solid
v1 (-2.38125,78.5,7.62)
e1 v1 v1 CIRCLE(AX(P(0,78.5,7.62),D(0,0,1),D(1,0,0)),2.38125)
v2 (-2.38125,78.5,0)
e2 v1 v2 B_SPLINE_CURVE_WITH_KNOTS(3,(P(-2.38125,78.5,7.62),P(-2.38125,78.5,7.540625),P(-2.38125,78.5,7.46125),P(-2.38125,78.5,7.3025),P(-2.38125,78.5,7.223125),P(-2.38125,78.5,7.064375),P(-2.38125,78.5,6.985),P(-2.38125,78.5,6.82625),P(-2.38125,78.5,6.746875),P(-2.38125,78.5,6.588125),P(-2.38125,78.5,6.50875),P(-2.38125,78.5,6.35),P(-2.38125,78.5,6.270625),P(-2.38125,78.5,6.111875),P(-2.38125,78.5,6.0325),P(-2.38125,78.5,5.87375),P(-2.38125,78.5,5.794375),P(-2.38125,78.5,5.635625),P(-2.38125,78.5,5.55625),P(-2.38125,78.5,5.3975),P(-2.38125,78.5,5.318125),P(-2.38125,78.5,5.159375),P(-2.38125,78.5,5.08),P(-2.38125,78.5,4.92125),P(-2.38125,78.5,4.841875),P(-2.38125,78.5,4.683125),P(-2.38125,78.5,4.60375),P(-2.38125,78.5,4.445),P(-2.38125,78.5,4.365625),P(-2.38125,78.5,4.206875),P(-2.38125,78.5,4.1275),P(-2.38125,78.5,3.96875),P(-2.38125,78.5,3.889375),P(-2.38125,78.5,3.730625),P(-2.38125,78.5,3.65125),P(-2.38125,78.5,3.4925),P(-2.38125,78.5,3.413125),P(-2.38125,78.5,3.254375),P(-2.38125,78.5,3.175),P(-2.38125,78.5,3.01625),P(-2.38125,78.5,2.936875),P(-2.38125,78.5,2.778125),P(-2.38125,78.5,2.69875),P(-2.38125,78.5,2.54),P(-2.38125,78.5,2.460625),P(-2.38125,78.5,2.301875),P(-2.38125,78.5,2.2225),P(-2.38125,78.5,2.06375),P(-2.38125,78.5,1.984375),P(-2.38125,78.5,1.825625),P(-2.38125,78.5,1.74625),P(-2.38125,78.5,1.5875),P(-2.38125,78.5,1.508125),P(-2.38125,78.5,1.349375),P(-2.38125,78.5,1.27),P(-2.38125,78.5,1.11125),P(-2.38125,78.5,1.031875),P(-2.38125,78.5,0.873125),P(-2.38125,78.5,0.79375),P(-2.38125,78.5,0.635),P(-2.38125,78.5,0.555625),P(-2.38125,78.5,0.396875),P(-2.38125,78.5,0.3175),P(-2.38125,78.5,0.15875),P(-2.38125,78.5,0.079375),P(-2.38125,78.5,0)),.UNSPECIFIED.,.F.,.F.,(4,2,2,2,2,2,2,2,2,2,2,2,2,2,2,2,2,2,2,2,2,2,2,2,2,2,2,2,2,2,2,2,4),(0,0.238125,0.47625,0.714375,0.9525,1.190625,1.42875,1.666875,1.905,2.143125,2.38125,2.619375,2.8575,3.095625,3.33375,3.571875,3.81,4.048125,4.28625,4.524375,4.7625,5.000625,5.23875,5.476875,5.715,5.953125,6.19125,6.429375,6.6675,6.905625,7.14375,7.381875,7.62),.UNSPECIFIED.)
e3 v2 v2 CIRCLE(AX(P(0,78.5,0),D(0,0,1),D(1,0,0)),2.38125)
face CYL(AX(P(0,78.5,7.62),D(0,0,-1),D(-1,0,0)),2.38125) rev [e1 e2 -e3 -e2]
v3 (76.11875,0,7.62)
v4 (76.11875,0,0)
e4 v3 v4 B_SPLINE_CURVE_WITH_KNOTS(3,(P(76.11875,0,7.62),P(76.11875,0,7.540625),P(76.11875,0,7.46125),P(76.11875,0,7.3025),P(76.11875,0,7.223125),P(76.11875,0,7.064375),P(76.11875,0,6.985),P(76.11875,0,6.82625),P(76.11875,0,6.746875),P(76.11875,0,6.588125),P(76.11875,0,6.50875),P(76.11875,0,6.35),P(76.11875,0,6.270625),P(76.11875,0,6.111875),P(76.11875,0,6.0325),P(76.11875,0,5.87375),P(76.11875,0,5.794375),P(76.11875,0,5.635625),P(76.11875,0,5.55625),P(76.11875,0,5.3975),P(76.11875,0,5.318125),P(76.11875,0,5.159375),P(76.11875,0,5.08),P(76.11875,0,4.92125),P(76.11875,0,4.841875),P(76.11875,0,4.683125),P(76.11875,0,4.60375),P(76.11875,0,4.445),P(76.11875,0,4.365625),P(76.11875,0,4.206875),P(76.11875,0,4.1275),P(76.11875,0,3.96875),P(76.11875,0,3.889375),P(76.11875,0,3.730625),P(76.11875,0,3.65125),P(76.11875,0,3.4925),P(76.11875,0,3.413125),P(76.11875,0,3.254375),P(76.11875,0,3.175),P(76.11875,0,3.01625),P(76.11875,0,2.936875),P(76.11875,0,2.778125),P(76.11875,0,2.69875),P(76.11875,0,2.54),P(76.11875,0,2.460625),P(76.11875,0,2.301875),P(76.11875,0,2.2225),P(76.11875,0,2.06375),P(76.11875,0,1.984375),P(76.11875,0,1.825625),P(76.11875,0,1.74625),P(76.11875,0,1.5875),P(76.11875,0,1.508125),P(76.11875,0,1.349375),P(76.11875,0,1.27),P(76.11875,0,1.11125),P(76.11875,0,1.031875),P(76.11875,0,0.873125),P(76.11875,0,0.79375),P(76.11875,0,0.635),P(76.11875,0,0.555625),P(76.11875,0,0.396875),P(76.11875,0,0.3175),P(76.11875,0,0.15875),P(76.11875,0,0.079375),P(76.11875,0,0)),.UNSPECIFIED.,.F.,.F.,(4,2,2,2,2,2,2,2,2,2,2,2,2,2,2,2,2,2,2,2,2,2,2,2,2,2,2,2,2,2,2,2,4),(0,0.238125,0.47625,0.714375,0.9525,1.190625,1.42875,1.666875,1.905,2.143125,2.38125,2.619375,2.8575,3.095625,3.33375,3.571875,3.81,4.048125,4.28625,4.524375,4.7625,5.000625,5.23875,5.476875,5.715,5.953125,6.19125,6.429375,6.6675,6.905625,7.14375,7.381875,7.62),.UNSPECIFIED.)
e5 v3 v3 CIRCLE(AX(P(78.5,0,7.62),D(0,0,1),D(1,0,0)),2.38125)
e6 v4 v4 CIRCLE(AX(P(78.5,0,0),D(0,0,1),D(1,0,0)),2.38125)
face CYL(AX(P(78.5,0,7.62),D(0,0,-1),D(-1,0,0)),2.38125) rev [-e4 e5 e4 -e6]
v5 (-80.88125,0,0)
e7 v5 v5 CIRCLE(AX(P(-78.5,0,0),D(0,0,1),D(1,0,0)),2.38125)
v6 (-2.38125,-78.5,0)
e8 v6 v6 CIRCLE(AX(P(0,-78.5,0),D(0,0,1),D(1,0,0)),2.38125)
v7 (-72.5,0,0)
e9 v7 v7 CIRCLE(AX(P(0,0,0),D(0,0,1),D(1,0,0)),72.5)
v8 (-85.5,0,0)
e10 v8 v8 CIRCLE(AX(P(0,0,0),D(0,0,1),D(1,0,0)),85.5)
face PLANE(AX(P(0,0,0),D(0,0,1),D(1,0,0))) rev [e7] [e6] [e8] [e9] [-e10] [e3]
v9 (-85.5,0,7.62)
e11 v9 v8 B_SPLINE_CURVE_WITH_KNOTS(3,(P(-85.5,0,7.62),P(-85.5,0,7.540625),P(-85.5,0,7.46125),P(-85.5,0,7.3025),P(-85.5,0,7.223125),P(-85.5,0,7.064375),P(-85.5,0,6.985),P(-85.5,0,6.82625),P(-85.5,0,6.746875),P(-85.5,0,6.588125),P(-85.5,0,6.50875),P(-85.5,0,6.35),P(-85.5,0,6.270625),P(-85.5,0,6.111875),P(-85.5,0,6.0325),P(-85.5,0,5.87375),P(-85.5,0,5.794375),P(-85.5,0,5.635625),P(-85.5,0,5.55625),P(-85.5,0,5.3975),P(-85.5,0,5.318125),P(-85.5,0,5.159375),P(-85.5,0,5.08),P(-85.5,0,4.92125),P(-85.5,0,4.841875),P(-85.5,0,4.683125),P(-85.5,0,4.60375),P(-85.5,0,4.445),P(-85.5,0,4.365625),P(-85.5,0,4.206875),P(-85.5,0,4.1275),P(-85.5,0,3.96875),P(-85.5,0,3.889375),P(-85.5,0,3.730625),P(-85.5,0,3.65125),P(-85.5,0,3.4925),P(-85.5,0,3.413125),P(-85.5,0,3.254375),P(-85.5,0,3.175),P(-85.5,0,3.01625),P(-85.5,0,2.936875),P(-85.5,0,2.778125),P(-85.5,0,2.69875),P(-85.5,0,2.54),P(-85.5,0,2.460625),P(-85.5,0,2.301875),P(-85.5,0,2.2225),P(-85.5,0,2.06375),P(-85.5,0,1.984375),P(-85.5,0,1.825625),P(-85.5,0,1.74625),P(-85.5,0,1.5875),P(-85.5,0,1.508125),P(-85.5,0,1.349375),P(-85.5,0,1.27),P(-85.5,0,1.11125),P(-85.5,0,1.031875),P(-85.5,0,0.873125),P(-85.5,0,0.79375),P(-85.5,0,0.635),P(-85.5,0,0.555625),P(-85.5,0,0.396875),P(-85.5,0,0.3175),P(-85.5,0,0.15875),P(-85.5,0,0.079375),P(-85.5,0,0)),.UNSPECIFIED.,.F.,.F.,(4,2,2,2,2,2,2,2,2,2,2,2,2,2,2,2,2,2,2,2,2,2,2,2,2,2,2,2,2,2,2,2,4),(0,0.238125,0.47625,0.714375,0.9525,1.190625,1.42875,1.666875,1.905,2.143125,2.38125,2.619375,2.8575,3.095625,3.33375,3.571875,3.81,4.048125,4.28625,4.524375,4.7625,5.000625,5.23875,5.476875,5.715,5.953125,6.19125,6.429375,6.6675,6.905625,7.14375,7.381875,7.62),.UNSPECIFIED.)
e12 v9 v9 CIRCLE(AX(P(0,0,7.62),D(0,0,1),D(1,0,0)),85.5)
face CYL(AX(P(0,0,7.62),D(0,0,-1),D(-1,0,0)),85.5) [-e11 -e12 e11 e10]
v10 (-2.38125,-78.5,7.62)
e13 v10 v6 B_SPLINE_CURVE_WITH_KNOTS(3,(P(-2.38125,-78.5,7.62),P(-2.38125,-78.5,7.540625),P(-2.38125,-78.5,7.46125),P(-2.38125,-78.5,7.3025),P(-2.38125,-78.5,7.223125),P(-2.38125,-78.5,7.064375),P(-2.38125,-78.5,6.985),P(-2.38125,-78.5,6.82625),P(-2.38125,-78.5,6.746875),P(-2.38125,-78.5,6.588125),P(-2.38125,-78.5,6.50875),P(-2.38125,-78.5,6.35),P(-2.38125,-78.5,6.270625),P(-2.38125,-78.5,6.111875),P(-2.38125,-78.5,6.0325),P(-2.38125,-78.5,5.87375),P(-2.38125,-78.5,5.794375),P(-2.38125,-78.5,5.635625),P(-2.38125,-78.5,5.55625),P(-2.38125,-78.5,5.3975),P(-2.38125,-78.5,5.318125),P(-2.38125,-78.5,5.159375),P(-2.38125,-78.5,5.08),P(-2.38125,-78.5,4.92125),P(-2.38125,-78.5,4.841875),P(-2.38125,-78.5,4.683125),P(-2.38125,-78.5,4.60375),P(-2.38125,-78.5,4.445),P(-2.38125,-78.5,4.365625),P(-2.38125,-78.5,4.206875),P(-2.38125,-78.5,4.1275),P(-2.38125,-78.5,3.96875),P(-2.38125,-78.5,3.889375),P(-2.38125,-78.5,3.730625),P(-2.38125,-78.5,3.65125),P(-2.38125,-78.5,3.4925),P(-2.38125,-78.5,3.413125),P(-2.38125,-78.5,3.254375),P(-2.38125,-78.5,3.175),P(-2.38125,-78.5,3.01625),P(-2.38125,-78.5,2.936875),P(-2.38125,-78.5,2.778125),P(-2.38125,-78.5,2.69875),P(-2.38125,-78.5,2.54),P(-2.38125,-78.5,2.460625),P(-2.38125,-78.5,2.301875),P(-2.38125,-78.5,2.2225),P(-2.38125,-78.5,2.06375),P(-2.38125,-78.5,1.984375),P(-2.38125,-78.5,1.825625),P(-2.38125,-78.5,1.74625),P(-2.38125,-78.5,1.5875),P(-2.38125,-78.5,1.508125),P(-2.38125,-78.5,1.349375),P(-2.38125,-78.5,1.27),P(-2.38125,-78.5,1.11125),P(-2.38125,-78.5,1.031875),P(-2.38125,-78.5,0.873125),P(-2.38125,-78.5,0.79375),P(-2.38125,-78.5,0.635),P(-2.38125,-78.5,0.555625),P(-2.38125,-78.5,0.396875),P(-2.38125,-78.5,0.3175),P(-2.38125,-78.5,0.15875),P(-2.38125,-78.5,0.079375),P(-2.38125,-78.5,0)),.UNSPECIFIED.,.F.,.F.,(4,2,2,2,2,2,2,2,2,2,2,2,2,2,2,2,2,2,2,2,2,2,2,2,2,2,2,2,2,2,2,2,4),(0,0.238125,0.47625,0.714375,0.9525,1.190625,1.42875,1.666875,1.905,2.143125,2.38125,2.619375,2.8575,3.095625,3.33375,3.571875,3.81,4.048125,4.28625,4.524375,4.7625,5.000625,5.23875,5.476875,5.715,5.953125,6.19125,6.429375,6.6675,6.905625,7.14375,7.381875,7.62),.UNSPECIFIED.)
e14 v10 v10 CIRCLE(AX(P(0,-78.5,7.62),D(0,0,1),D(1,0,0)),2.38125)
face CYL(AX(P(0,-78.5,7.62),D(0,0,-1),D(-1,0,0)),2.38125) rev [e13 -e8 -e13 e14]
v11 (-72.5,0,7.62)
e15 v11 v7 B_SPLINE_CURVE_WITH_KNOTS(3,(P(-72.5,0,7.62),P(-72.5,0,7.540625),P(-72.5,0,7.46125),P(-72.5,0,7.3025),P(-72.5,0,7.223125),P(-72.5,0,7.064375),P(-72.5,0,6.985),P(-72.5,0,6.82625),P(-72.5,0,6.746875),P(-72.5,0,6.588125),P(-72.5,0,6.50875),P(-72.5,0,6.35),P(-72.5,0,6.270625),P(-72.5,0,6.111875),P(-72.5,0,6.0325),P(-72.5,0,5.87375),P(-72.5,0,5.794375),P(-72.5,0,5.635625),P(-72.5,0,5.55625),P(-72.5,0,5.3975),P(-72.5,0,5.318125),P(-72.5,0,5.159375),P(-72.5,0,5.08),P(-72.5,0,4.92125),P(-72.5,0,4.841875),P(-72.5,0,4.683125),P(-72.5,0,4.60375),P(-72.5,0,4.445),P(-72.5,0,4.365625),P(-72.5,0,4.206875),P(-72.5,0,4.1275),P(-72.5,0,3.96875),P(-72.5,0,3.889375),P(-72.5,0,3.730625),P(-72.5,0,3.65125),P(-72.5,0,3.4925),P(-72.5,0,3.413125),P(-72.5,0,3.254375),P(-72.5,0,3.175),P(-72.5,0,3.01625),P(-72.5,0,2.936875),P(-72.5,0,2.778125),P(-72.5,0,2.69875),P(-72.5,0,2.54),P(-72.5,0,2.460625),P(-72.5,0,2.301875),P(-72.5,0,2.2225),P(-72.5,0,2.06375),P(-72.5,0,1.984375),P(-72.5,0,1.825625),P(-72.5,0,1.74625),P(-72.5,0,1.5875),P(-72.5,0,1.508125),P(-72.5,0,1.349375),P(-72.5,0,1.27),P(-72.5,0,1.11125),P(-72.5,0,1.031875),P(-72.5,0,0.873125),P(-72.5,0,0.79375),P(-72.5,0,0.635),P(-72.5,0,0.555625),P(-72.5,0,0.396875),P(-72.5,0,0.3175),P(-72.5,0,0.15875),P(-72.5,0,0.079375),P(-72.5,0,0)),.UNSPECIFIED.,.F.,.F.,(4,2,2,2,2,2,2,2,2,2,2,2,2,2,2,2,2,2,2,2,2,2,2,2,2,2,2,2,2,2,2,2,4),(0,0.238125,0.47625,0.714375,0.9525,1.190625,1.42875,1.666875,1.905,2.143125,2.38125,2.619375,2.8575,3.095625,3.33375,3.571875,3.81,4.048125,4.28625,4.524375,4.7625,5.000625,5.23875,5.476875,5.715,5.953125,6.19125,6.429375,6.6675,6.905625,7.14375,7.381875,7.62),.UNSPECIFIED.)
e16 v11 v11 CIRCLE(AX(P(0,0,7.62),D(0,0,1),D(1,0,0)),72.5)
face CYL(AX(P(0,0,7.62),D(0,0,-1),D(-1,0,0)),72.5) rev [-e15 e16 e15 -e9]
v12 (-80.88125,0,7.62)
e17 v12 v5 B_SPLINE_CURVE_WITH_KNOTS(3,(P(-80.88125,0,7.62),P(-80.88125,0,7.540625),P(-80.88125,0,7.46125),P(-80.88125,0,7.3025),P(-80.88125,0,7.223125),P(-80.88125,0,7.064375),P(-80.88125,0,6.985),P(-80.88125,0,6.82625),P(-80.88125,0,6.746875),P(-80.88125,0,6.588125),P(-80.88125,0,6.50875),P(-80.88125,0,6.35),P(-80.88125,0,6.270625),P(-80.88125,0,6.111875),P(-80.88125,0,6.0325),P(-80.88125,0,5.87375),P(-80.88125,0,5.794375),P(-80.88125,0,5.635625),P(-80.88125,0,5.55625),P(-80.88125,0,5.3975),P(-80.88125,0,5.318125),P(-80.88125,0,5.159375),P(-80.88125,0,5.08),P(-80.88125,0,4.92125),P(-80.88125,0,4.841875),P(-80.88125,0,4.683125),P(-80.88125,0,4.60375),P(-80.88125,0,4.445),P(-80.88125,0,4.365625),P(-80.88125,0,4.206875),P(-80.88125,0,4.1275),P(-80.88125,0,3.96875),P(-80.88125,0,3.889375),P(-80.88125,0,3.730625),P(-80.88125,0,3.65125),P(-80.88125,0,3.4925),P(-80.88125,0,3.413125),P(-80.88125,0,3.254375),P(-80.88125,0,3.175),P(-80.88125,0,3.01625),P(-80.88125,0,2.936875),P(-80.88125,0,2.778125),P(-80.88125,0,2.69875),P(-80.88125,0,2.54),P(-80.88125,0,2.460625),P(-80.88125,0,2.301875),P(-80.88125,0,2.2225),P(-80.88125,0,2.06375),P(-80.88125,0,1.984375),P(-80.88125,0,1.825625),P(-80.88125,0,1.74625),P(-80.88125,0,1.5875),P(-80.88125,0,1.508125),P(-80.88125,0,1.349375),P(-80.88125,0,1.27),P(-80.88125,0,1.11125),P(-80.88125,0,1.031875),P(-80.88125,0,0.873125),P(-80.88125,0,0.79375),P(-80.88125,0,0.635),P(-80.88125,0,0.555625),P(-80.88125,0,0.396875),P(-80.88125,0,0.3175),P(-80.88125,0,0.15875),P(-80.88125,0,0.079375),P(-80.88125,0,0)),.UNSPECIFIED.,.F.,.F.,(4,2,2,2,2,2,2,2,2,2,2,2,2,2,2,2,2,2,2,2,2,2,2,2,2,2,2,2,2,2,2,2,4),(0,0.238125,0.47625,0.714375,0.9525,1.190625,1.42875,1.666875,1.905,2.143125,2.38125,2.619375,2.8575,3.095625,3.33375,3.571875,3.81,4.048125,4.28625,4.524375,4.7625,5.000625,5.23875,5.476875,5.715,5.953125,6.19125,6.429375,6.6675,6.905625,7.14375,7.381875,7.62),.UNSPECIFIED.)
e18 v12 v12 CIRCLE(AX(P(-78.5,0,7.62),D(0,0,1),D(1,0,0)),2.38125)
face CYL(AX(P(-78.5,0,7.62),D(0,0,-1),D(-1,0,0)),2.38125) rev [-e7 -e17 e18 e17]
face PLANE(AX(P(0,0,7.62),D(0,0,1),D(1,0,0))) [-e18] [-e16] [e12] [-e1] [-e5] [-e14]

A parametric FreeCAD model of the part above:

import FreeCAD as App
import Part
import Sketcher
from FreeCAD import Vector
Q = App.Units.Quantity

doc = App.newDocument("Part")
params = doc.addObject("Spreadsheet::Sheet", "Params")
for row, (alias, value) in enumerate([
    ("sketch1_diameter", "171 mm"),
    ("sketch1_diameter2", "145 mm"),
    ("pad1_length", "7.62 mm"),
], start=1):
    params.set(f"A{row}", alias)
    params.set(f"B{row}", "=" + value)
    params.setAlias(f"B{row}", alias)

body = doc.addObject("PartDesign::Body", "Body")

sketch1 = body.newObject("Sketcher::SketchObject", "Sketch")
sketch1.AttachmentSupport = (doc.getObject("XY_Plane"), [""])
sketch1.MapMode = "FlatFace"
sketch1.addGeometry([
    Part.Circle(Vector(0, 0, 0), Vector(0, 0, 1), 85.5),
    Part.Circle(Vector(78.5, 0, 0), Vector(0, 0, 1), 2.38125),
    Part.Circle(Vector(0, 78.5, 0), Vector(0, 0, 1), 2.38125),
    Part.Circle(Vector(0, 0, 0), Vector(0, 0, 1), 72.5),
    Part.Circle(Vector(-78.5, 0, 0), Vector(0, 0, 1), 2.38125),
    Part.Circle(Vector(0, -78.5, 0), Vector(0, 0, 1), 2.38125),
], False)
sketch1.addConstraint([
    Sketcher.Constraint("Coincident", 0, 3, -1, 1),
    Sketcher.Constraint("Coincident", 3, 3, -1, 1),
    Sketcher.Constraint("Equal", 1, 2),
    Sketcher.Constraint("Equal", 2, 4),
    Sketcher.Constraint("Equal", 4, 5),
    Sketcher.Constraint("Symmetric", 1, 3, 4, 3, -1, 1),
    Sketcher.Constraint("Symmetric", 2, 3, 5, 3, -1, 1),
    Sketcher.Constraint("PointOnObject", 1, 3, -1),
    Sketcher.Constraint("PointOnObject", 2, 3, -2),
    Sketcher.Constraint("Diameter", 0, Q("171 mm")),
    Sketcher.Constraint("Diameter", 3, Q("145 mm")),
    Sketcher.Constraint("DistanceX", 4, 3, 1, 3, Q("157 mm")),
    Sketcher.Constraint("DistanceY", 5, 3, 2, 3, Q("157 mm")),
    Sketcher.Constraint("Diameter", 1, Q("4.7625 mm")),
])
sketch1.setExpression("Constraints[9]", "Params.sketch1_diameter")
sketch1.setExpression("Constraints[10]", "Params.sketch1_diameter2")
pad1 = body.newObject("PartDesign::Pad", "Pad")
pad1.Profile = sketch1
pad1.setExpression("Length", "Params.pad1_length")

doc.recompute()
